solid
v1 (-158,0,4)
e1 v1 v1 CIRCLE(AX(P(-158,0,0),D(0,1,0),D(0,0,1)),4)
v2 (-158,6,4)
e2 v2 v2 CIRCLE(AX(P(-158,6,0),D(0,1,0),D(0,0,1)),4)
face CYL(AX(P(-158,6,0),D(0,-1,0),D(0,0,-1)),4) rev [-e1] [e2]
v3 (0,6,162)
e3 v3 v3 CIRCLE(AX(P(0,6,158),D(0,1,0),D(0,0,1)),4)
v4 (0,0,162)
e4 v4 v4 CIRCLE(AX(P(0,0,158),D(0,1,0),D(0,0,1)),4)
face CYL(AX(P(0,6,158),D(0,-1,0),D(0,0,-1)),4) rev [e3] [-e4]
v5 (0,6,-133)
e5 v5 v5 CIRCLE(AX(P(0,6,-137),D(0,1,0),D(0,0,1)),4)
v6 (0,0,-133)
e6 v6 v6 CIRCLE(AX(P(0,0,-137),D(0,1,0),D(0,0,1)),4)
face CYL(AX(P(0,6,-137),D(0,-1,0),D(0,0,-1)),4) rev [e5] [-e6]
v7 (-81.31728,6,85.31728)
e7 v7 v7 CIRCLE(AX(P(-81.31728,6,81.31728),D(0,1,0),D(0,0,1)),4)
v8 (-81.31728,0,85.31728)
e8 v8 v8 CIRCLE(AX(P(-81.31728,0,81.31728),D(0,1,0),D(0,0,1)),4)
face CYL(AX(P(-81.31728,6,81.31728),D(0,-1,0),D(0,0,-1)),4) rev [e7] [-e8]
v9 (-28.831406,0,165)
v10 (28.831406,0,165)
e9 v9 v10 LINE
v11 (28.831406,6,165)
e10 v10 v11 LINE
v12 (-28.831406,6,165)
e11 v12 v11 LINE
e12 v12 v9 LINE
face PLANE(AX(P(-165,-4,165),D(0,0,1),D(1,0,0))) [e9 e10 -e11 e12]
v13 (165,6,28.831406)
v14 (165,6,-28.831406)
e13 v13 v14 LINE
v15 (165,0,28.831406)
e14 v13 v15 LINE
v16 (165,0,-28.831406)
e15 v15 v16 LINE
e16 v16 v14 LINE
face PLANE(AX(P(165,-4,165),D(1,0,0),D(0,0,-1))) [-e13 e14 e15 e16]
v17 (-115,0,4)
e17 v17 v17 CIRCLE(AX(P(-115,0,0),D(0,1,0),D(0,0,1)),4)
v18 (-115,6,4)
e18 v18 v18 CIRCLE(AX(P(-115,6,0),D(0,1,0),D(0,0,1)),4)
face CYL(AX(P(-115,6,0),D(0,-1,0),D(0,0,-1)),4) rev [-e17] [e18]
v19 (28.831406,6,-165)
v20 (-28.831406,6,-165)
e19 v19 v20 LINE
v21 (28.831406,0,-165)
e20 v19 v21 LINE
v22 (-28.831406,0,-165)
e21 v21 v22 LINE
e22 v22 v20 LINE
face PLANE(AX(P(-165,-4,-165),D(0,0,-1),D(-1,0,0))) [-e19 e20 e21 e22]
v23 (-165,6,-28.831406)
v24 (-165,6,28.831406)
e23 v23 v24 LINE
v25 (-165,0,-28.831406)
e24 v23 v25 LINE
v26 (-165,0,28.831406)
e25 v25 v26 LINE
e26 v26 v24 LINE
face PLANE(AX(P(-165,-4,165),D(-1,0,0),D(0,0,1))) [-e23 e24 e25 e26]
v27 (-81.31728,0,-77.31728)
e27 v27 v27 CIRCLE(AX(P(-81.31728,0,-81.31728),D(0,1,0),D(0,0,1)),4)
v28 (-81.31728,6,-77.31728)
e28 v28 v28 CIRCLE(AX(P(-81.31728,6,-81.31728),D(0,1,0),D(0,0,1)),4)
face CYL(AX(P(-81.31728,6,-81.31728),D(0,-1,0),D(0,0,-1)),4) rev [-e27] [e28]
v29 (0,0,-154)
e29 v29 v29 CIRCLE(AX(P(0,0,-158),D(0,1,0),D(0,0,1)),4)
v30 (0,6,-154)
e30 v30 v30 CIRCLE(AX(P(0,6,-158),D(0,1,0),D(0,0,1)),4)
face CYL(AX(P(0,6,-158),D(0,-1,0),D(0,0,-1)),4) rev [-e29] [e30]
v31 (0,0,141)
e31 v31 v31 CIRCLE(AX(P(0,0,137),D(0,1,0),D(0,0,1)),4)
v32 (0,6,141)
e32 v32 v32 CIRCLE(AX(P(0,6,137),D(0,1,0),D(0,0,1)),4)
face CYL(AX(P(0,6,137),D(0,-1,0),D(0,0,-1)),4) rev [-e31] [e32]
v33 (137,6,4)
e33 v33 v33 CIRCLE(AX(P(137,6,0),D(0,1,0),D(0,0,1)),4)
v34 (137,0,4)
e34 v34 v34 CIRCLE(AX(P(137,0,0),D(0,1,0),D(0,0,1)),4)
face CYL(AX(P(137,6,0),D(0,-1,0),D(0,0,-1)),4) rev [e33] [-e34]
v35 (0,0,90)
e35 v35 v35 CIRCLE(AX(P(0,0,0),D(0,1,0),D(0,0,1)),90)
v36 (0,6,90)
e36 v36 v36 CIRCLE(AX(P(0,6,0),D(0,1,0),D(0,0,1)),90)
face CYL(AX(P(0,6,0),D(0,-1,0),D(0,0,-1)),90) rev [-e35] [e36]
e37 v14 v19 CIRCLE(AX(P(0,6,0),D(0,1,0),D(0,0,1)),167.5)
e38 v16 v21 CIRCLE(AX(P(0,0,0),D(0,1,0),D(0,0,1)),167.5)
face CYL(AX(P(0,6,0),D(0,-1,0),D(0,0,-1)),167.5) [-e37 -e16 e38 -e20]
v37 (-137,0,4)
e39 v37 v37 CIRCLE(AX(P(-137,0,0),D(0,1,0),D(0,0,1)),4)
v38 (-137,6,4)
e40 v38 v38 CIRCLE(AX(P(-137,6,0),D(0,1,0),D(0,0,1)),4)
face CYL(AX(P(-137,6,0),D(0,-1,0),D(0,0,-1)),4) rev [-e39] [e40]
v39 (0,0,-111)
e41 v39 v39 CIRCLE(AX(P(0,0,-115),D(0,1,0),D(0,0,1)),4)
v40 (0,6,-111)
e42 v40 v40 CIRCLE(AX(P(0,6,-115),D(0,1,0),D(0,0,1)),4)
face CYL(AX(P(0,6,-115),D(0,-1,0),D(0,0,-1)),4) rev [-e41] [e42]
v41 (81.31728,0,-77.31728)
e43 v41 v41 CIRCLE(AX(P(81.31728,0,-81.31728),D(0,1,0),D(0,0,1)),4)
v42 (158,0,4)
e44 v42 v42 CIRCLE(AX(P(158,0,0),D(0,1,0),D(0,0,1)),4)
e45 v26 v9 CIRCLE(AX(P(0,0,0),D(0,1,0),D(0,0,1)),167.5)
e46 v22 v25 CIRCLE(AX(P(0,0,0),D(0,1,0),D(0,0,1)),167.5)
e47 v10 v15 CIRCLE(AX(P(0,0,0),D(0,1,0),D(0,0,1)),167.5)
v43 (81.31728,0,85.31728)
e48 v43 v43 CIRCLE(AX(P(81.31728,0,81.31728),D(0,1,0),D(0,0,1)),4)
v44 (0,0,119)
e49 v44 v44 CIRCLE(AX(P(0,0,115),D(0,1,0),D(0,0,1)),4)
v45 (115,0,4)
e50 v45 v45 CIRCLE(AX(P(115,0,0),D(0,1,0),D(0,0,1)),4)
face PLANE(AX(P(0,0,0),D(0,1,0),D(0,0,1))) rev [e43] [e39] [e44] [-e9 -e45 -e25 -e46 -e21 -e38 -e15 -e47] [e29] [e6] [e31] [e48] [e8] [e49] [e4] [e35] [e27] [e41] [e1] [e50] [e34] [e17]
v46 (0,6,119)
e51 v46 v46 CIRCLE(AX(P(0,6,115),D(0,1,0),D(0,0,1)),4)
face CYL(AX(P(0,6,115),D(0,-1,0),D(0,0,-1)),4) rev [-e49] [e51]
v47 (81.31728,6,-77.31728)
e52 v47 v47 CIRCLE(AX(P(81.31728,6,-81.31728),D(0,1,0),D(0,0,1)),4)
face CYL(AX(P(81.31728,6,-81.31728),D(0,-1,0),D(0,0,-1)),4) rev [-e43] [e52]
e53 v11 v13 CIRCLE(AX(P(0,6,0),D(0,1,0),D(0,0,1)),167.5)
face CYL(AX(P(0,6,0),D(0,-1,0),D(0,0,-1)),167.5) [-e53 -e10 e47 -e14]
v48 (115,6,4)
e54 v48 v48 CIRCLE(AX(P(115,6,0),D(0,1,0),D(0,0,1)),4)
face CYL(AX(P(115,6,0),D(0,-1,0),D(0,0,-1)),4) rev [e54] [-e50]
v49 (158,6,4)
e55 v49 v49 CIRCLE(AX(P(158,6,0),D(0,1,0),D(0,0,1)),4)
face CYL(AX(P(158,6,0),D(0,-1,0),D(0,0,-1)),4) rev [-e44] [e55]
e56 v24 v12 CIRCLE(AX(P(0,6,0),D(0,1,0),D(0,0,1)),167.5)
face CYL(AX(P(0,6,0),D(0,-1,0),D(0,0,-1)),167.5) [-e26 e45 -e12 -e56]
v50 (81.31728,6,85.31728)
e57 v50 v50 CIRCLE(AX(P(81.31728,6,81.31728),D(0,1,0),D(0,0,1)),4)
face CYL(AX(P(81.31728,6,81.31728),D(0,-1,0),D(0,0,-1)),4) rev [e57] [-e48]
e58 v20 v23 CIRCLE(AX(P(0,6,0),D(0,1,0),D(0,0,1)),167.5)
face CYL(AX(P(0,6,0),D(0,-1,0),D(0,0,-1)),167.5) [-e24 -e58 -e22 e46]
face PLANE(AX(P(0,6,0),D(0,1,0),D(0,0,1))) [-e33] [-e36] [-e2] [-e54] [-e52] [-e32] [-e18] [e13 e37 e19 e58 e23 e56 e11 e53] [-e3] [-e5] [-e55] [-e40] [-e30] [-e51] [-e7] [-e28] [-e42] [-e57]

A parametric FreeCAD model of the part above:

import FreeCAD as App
import Part
import Sketcher

V = App.Vector
Q = App.Units.Quantity


def add_polygon(sketch, points):
    """Adds a closed chain of lines whose ends are joined by coincident constraints."""
    first, n = sketch.GeometryCount, len(points)
    for a, b in zip(points, points[1:] + points[:1]):
        sketch.addGeometry(Part.LineSegment(App.Vector(*a, 0), App.Vector(*b, 0)), False)
    for i in range(n):
        sketch.addConstraint(Sketcher.Constraint("Coincident", first + i, 2, first + (i + 1) % n, 1))

doc = App.newDocument("Part")
body = doc.addObject("PartDesign::Body", "Body")

sketch1 = body.newObject("Sketcher::SketchObject", "Sketch")
sketch1.AttachmentSupport = (doc.getObject("XZ_Plane"), [""])
sketch1.MapMode = "FlatFace"
sketch1.addGeometry([
    Part.Circle(V(0, 0, 0), V(0, 0, 1), 167.5),
    Part.Circle(V(-81.3, -81.3, 0), V(0, 0, 1), 4),
    Part.Circle(V(0, -158, 0), V(0, 0, 1), 4),
    Part.Circle(V(0, -137, 0), V(0, 0, 1), 4),
    Part.Circle(V(0, -115, 0), V(0, 0, 1), 4),
    Part.Circle(V(-158, 0, 0), V(0, 0, 1), 4),
    Part.Circle(V(-137, 0, 0), V(0, 0, 1), 4),
    Part.Circle(V(-115, 0, 0), V(0, 0, 1), 4),
    Part.Circle(V(-81.3, 81.3, 0), V(0, 0, 1), 4),
    Part.Circle(V(81.3, -81.3, 0), V(0, 0, 1), 4),
    Part.Circle(V(115, 0, 0), V(0, 0, 1), 4),
    Part.Circle(V(137, 0, 0), V(0, 0, 1), 4),
    Part.Circle(V(158, 0, 0), V(0, 0, 1), 4),
    Part.Circle(V(0, 0, 0), V(0, 0, 1), 90),
    Part.Circle(V(0, 115, 0), V(0, 0, 1), 4),
    Part.Circle(V(0, 137, 0), V(0, 0, 1), 4),
    Part.Circle(V(0, 158, 0), V(0, 0, 1), 4),
    Part.Circle(V(81.3, 81.3, 0), V(0, 0, 1), 4),
], False)
sketch1.addConstraint([
    Sketcher.Constraint("Coincident", 0, 3, -1, 1),
    Sketcher.Constraint("Coincident", 13, 3, -1, 1),
    Sketcher.Constraint("Equal", 1, 2),
    Sketcher.Constraint("Equal", 2, 3),
    Sketcher.Constraint("Equal", 3, 4),
    Sketcher.Constraint("Equal", 4, 5),
    Sketcher.Constraint("Equal", 5, 6),
    Sketcher.Constraint("Equal", 6, 7),
    Sketcher.Constraint("Equal", 7, 8),
    Sketcher.Constraint("Equal", 8, 9),
    Sketcher.Constraint("Equal", 9, 10),
    Sketcher.Constraint("Equal", 10, 11),
    Sketcher.Constraint("Equal", 11, 12),
    Sketcher.Constraint("Equal", 12, 14),
    Sketcher.Constraint("Equal", 14, 15),
    Sketcher.Constraint("Equal", 15, 16),
    Sketcher.Constraint("Equal", 16, 17),
    Sketcher.Constraint("Symmetric", 8, 3, 9, 3, -1, 1),
    Sketcher.Constraint("Symmetric", 7, 3, 10, 3, -1, 1),
    Sketcher.Constraint("Symmetric", 6, 3, 11, 3, -1, 1),
    Sketcher.Constraint("Symmetric", 5, 3, 12, 3, -1, 1),
    Sketcher.Constraint("Symmetric", 4, 3, 14, 3, -1, 1),
    Sketcher.Constraint("Symmetric", 3, 3, 15, 3, -1, 1),
    Sketcher.Constraint("Symmetric", 2, 3, 16, 3, -1, 1),
    Sketcher.Constraint("Symmetric", 1, 3, 17, 3, -1, 1),
    Sketcher.Constraint("Symmetric", 1, 3, 9, 3, -2),
    Sketcher.Constraint("PointOnObject", 2, 3, -2),
    Sketcher.Constraint("PointOnObject", 3, 3, -2),
    Sketcher.Constraint("PointOnObject", 4, 3, -2),
    Sketcher.Constraint("PointOnObject", 5, 3, -1),
    Sketcher.Constraint("PointOnObject", 6, 3, -1),
    Sketcher.Constraint("PointOnObject", 7, 3, -1),
    Sketcher.Constraint("Diameter", 0, Q("335 mm")),
    Sketcher.Constraint("Diameter", 1, Q("8 mm")),
    Sketcher.Constraint("Diameter", 13, Q("180 mm")),
    Sketcher.Constraint("DistanceY", 2, 3, -1, 1, Q("158 mm")),
    Sketcher.Constraint("DistanceY", 3, 3, -1, 1, Q("137 mm")),
    Sketcher.Constraint("DistanceY", 4, 3, -1, 1, Q("115 mm")),
    Sketcher.Constraint("DistanceX", 5, 3, -1, 1, Q("158 mm")),
    Sketcher.Constraint("DistanceX", 6, 3, -1, 1, Q("137 mm")),
    Sketcher.Constraint("DistanceX", 7, 3, -1, 1, Q("115 mm")),
    Sketcher.Constraint("DistanceX", 1, 3, -1, 1, Q("81.31728 mm")),
    Sketcher.Constraint("DistanceY", 1, 3, -1, 1, Q("81.31728 mm")),
])
pad1 = body.newObject("PartDesign::Pad", "Pad")
pad1.Profile = sketch1
pad1.Length = 6
pad1.Reversed = True

sketch2 = body.newObject("Sketcher::SketchObject", "Sketch001")
sketch2.AttachmentSupport = (doc.getObject("XZ_Plane"), [""])
sketch2.MapMode = "FlatFace"
sketch2.AttachmentOffset = App.Placement(V(0, 0, -6), App.Rotation())
add_polygon(sketch2, [(-216, -216), (-216, 216), (216, 216), (216, -216)])
add_polygon(sketch2, [(165, 165), (-165, 165), (-165, -165), (165, -165)])
sketch2.addConstraint([
    Sketcher.Constraint("Vertical", 0),
    Sketcher.Constraint("Horizontal", 1),
    Sketcher.Constraint("Vertical", 2),
    Sketcher.Constraint("Horizontal", 3),
    Sketcher.Constraint("Horizontal", 4),
    Sketcher.Constraint("Vertical", 5),
    Sketcher.Constraint("Horizontal", 6),
    Sketcher.Constraint("Vertical", 7),
    Sketcher.Constraint("Symmetric", 0, 2, 2, 2, -1, 1),
    Sketcher.Constraint("Symmetric", 4, 2, 6, 2, -1, 1),
    Sketcher.Constraint("Equal", 3, 0),
    Sketcher.Constraint("Equal", 6, 5),
    Sketcher.Constraint("DistanceX", 4, 2, 4, 1, Q("330 mm")),
    Sketcher.Constraint("DistanceX", 1, 1, 1, 2, Q("431.76 mm")),
])
pocket1 = body.newObject("PartDesign::Pocket", "Pocket")
pocket1.Profile = sketch2
pocket1.Length = 10
pocket1.Reversed = True

doc.recompute()
